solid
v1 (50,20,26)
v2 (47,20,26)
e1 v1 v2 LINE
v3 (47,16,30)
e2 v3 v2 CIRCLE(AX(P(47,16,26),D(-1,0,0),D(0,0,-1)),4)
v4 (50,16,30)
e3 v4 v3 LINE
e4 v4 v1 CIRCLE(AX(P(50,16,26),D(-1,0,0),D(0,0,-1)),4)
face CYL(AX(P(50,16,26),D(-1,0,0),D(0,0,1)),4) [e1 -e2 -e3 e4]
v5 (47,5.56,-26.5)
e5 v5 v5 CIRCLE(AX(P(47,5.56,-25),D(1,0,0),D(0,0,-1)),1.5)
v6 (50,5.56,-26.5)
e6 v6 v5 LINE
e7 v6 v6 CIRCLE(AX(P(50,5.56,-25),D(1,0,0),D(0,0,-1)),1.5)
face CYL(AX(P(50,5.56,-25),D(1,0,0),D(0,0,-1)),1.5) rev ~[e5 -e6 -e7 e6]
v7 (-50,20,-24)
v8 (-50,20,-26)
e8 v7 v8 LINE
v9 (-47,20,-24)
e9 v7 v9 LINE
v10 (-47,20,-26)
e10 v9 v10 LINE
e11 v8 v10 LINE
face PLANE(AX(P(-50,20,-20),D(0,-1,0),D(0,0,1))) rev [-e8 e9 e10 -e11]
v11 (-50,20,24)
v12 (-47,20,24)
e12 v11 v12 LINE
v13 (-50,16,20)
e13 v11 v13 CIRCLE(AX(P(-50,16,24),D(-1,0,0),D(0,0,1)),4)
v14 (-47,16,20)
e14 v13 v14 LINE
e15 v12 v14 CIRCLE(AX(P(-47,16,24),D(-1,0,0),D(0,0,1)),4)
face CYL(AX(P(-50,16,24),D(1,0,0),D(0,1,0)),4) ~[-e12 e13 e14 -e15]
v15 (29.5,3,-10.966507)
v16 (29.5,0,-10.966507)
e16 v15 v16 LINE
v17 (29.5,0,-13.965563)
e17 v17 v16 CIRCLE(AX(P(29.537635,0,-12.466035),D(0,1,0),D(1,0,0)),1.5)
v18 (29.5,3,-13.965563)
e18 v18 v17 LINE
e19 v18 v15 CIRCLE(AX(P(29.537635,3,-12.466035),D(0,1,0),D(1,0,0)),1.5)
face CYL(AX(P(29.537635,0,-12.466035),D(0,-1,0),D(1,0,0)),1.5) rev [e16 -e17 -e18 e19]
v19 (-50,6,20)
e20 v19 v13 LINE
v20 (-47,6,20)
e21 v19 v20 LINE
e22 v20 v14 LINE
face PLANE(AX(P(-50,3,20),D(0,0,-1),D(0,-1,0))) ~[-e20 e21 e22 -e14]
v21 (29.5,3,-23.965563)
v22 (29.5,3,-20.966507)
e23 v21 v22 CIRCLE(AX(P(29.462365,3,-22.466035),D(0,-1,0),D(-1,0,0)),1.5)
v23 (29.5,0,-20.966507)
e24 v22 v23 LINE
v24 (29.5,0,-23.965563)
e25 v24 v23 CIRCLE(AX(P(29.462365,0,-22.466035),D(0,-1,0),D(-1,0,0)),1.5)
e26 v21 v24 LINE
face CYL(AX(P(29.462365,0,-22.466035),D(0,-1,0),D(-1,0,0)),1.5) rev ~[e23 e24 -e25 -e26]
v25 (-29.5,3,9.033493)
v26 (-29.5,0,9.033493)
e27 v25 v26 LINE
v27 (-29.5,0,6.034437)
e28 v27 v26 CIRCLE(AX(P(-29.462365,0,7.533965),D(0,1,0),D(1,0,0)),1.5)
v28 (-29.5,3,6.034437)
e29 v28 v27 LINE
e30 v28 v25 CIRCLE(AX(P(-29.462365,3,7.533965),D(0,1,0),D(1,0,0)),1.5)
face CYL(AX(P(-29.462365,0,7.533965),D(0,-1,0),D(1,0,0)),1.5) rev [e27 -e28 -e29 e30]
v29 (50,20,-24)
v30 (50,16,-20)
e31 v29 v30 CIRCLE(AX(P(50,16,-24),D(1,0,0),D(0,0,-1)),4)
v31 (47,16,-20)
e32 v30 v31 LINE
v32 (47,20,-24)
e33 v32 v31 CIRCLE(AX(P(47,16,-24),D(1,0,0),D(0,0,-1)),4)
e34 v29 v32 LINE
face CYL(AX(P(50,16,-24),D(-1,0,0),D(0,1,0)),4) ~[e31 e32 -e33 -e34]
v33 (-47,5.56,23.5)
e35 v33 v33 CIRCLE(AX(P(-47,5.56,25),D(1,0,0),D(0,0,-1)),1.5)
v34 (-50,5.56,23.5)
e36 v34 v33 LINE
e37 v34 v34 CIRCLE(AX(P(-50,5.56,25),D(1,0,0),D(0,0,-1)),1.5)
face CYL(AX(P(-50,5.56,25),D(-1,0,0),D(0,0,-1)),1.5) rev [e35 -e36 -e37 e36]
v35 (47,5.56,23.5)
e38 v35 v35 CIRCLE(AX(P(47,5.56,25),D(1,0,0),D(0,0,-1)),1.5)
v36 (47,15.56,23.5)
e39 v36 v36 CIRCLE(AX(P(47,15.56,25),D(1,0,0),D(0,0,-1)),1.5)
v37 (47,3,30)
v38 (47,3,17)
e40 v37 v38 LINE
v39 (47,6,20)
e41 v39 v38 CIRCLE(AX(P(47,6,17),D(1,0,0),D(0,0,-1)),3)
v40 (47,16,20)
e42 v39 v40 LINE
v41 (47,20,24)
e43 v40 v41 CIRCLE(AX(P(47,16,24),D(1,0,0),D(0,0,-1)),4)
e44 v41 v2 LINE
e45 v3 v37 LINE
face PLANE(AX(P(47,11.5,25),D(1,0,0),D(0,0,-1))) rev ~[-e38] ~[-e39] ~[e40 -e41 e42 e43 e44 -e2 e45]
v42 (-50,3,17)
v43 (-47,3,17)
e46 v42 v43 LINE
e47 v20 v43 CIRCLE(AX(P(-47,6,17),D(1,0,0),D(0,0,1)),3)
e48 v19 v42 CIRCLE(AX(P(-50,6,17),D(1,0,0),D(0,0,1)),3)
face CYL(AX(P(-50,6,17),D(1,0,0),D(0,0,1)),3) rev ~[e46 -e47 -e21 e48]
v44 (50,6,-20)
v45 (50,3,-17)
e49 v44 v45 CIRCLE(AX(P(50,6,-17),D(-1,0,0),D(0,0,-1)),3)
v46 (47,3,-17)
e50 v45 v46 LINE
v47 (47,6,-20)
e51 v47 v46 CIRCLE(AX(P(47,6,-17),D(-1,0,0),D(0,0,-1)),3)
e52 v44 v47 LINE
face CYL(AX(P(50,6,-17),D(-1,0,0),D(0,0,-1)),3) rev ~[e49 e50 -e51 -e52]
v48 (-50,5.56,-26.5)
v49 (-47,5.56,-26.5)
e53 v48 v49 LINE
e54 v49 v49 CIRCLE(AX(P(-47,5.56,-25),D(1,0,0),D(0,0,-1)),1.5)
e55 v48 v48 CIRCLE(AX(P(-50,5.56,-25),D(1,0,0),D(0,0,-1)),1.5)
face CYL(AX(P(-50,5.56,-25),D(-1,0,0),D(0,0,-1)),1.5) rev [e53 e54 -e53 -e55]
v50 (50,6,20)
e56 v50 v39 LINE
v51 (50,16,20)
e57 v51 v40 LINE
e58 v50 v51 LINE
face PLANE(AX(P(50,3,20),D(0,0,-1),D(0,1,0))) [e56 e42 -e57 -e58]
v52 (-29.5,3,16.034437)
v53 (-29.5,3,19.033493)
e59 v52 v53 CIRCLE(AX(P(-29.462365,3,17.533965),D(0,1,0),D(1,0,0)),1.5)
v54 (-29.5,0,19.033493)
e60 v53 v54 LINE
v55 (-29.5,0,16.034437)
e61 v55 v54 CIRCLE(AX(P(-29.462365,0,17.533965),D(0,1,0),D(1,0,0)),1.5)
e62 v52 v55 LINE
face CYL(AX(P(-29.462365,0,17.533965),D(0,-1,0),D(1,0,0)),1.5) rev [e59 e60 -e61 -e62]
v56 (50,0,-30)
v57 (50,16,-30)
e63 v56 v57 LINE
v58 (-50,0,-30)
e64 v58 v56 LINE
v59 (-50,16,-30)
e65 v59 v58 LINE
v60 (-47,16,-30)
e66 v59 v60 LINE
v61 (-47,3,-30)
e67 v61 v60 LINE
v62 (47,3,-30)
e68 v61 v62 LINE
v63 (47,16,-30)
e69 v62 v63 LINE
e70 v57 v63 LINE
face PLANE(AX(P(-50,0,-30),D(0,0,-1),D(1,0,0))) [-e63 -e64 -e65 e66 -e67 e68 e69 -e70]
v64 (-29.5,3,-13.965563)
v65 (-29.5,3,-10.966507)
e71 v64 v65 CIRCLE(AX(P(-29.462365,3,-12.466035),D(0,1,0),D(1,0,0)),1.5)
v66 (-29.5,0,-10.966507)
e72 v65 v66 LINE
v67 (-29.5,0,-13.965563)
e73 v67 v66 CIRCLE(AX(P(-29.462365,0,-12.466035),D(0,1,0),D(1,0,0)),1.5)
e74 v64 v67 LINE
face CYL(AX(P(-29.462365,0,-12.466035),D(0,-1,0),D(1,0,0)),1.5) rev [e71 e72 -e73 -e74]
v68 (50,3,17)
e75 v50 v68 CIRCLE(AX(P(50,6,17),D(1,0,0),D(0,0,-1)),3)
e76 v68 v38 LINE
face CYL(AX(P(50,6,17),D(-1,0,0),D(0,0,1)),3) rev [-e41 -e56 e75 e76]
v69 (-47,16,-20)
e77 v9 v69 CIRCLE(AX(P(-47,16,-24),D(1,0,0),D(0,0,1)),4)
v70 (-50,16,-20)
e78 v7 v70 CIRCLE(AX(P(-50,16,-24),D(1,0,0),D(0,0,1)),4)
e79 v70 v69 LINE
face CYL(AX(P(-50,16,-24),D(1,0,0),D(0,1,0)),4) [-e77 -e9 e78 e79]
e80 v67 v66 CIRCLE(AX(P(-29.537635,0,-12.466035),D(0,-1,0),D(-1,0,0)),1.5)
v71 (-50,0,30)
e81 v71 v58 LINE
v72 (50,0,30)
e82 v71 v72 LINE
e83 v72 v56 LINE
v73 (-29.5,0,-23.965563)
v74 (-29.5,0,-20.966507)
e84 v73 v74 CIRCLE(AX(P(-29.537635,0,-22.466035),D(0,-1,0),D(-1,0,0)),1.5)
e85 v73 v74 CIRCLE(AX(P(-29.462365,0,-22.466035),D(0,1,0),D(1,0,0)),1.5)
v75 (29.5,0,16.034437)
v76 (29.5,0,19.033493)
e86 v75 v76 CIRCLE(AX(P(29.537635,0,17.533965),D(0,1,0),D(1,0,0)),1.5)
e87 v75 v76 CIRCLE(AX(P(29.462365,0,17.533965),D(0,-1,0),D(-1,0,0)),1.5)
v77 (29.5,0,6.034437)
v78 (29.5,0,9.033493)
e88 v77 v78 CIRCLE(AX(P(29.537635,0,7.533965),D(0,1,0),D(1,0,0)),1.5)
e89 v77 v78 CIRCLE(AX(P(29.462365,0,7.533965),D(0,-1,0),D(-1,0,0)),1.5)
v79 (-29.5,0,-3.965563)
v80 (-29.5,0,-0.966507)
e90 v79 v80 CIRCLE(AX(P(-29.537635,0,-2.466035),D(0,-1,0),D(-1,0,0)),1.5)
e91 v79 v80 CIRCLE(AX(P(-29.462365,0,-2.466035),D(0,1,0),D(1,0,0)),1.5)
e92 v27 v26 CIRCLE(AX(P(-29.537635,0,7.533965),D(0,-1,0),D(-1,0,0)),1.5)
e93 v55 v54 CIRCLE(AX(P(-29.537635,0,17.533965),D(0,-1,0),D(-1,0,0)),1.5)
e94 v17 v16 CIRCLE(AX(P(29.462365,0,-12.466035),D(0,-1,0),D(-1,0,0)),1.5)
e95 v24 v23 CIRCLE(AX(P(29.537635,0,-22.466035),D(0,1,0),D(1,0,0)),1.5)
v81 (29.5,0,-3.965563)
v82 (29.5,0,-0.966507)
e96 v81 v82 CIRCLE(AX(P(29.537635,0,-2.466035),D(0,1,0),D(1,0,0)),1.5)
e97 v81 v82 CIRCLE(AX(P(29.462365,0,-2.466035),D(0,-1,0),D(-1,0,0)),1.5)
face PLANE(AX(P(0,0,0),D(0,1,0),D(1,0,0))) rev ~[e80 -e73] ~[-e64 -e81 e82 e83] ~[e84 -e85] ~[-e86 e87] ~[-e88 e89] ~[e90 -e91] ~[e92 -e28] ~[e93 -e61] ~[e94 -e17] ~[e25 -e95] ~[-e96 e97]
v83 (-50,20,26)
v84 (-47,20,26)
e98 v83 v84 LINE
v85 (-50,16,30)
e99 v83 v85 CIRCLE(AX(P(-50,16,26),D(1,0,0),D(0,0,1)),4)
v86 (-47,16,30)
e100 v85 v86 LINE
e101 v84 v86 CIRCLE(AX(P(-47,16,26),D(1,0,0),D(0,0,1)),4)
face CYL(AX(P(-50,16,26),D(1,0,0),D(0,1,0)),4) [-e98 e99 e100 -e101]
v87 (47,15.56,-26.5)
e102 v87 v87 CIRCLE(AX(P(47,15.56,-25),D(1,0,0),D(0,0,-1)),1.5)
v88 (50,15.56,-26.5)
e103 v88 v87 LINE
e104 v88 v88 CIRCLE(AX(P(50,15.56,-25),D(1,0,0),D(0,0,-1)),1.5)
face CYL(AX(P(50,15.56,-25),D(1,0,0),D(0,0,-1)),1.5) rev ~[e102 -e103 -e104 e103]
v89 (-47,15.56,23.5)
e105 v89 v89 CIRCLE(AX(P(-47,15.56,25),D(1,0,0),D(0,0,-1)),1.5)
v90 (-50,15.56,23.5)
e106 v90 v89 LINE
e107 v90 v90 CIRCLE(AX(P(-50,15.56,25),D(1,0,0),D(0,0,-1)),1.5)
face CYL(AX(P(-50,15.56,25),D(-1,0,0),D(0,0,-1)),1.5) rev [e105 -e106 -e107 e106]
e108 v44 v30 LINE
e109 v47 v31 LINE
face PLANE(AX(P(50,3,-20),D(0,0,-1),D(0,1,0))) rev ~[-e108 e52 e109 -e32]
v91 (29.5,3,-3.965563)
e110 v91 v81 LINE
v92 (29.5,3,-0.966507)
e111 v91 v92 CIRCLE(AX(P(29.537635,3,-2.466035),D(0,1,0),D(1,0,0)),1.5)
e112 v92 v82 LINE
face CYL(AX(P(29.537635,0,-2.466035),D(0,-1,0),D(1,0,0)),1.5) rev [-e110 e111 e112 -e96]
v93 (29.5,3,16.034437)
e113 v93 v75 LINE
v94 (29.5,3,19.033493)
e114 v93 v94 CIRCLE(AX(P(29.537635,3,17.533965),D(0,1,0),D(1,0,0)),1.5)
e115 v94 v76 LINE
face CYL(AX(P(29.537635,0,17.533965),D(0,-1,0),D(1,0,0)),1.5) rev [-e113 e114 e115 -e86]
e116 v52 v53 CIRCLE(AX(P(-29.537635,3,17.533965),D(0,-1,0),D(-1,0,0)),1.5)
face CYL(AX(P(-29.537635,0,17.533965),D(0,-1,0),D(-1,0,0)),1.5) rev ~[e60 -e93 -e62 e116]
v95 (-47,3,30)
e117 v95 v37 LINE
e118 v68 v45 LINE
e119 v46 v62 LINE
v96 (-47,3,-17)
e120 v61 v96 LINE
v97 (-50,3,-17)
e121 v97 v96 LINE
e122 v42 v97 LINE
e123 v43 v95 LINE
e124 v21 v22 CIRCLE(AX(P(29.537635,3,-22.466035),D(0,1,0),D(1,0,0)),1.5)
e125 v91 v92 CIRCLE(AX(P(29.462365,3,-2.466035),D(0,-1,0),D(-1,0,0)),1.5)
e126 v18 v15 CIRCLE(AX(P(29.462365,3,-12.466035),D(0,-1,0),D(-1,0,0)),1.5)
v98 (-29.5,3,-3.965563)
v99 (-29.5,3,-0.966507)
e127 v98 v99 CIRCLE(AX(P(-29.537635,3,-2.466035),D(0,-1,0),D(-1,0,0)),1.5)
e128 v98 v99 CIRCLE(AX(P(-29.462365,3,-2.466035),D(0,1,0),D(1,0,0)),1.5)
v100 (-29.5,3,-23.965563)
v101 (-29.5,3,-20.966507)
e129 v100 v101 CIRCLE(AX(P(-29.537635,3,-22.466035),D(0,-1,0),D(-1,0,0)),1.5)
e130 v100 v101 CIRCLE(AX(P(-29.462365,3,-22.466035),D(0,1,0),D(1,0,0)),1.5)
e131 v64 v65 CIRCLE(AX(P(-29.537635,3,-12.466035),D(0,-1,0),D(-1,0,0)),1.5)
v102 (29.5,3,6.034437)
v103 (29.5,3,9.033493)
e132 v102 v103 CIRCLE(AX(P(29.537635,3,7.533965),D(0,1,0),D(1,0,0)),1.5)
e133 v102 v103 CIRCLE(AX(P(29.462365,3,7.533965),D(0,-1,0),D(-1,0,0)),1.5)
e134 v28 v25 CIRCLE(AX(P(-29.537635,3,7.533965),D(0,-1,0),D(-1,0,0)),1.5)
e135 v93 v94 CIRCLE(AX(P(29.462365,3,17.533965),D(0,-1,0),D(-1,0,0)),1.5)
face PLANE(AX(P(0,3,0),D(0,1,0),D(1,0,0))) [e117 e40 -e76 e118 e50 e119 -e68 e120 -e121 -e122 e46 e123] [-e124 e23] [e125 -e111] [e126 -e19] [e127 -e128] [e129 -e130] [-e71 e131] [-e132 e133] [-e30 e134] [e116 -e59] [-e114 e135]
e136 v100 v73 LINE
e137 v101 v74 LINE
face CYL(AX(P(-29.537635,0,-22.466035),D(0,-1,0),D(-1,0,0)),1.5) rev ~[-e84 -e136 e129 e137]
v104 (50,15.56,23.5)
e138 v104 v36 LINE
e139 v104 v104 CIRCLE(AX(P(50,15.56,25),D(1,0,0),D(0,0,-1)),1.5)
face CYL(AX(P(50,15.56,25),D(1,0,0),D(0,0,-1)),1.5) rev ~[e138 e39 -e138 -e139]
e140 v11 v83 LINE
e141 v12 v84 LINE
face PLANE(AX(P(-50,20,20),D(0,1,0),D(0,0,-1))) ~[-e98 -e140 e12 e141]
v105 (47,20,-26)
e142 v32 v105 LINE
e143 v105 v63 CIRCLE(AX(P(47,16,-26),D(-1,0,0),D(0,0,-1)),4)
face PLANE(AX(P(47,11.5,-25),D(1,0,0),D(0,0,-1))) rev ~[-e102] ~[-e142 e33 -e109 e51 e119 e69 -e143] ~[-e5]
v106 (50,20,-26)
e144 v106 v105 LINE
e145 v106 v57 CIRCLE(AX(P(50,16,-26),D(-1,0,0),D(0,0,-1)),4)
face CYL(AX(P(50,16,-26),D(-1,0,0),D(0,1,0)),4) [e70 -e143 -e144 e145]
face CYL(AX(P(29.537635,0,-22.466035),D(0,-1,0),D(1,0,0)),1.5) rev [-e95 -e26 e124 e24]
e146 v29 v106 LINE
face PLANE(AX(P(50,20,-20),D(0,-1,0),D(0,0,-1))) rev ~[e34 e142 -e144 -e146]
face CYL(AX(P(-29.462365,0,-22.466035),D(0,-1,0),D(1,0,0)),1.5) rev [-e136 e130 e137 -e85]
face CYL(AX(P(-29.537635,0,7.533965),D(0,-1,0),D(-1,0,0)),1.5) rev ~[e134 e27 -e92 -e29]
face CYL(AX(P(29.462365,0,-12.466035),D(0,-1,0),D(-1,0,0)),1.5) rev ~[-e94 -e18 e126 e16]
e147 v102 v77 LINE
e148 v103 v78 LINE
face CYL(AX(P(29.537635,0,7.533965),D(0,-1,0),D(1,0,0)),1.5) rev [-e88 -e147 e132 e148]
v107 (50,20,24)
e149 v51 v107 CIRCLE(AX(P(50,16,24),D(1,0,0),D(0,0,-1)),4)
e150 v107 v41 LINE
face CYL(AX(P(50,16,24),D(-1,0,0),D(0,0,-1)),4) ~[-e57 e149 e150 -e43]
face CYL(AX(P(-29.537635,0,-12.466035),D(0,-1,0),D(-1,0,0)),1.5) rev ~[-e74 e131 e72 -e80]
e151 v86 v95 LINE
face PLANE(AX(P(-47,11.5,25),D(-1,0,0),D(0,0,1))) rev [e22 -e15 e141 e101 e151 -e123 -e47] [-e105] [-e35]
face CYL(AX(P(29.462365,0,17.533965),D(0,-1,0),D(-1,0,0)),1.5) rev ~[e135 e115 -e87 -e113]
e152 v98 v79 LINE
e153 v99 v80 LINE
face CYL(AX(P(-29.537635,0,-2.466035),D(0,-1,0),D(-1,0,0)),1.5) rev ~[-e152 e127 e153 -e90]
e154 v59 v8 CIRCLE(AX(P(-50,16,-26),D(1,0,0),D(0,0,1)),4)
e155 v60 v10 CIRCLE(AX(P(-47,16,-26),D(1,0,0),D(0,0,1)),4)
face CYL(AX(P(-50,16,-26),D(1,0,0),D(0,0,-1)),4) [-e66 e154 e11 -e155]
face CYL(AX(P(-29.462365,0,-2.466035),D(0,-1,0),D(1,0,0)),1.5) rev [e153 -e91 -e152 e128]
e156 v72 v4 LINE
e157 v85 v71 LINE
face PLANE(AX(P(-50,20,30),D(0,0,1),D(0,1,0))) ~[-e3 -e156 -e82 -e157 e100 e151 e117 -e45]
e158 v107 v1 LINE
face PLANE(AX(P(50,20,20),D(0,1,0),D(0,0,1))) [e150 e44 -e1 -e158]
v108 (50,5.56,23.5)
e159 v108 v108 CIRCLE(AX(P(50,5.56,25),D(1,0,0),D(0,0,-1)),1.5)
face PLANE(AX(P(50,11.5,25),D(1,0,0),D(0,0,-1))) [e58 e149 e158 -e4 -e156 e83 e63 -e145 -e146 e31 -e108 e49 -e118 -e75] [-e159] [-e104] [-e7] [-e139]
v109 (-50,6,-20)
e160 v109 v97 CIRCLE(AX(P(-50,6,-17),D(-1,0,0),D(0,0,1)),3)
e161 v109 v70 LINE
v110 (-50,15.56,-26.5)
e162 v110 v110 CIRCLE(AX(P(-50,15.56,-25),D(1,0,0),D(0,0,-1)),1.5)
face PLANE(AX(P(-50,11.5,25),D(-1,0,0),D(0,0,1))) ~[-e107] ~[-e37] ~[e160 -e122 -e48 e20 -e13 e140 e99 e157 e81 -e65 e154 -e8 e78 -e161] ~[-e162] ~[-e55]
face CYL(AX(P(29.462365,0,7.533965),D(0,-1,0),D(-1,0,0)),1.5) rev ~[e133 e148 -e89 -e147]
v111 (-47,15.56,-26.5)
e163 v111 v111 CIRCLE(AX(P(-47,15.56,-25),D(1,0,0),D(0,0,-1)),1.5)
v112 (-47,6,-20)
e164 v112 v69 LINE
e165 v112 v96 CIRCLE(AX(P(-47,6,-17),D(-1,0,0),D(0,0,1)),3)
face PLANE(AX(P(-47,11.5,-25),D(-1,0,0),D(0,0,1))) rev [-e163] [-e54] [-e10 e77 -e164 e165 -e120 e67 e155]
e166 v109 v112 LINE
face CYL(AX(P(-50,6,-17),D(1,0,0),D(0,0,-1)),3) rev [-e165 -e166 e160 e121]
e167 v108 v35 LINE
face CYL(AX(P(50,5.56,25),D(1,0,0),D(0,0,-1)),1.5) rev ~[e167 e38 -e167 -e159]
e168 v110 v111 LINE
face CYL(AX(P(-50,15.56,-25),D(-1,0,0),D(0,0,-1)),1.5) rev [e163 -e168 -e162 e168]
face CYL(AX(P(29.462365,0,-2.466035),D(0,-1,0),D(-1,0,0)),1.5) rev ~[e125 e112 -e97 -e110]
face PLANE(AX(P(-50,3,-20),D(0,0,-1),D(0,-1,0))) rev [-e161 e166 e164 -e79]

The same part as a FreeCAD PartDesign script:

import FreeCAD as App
import Part
import Sketcher


def edges_at(feature, points):
    """Names of the edges that pass closest to the given points."""
    edges = feature.Shape.Edges
    near = lambda p: min(range(len(edges)), key=lambda i: edges[i].distToShape(Part.Vertex(*p))[0])
    return sorted({f"Edge{near(p) + 1}" for p in points})


def add_polygon(sketch, points):
    """Adds a closed chain of lines whose ends are joined by coincident constraints."""
    first, n = sketch.GeometryCount, len(points)
    for a, b in zip(points, points[1:] + points[:1]):
        sketch.addGeometry(Part.LineSegment(App.Vector(*a, 0), App.Vector(*b, 0)), False)
    for i in range(n):
        sketch.addConstraint(Sketcher.Constraint("Coincident", first + i, 2, first + (i + 1) % n, 1))

doc = App.newDocument("Part")
body = doc.addObject("PartDesign::Body", "Body")

sketch1 = body.newObject("Sketcher::SketchObject", "Sketch")
sketch1.AttachmentSupport = (doc.getObject("XZ_Plane"), [""])
sketch1.MapMode = "FlatFace"
add_polygon(sketch1, [(-50, -30), (-50, 30), (50, 30), (50, -30)])
sketch1.addGeometry(Part.Circle(App.Vector(-29.5, 17.5, 0), App.Vector(0, 0, 1), 1.5), False)
sketch1.addGeometry(Part.Circle(App.Vector(-29.5, 7.5, 0), App.Vector(0, 0, 1), 1.5), False)
sketch1.addGeometry(Part.Circle(App.Vector(29.5, 17.5, 0), App.Vector(0, 0, 1), 1.5), False)
sketch1.addGeometry(Part.Circle(App.Vector(29.5, 7.5, 0), App.Vector(0, 0, 1), 1.5), False)
sketch1.addGeometry(Part.Circle(App.Vector(-29.5, -2.5, 0), App.Vector(0, 0, 1), 1.5), False)
sketch1.addGeometry(Part.Circle(App.Vector(-29.5, -12.5, 0), App.Vector(0, 0, 1), 1.5), False)
sketch1.addGeometry(Part.Circle(App.Vector(-29.5, -22.5, 0), App.Vector(0, 0, 1), 1.5), False)
sketch1.addGeometry(Part.Circle(App.Vector(29.5, -2.5, 0), App.Vector(0, 0, 1), 1.5), False)
sketch1.addGeometry(Part.Circle(App.Vector(29.5, -12.5, 0), App.Vector(0, 0, 1), 1.5), False)
sketch1.addGeometry(Part.Circle(App.Vector(29.5, -22.5, 0), App.Vector(0, 0, 1), 1.5), False)
sketch1.addConstraint([
    Sketcher.Constraint("Vertical", 0),
    Sketcher.Constraint("Horizontal", 1),
    Sketcher.Constraint("Vertical", 2),
    Sketcher.Constraint("Horizontal", 3),
    Sketcher.Constraint("Equal", 4, 5),
    Sketcher.Constraint("Equal", 5, 6),
    Sketcher.Constraint("Equal", 6, 7),
    Sketcher.Constraint("Equal", 7, 8),
    Sketcher.Constraint("Equal", 8, 9),
    Sketcher.Constraint("Equal", 9, 10),
    Sketcher.Constraint("Equal", 10, 11),
    Sketcher.Constraint("Equal", 11, 12),
    Sketcher.Constraint("Equal", 12, 13),
    Sketcher.Constraint("Symmetric", 0, 2, 2, 2, -1, 1),
    Sketcher.Constraint("Horizontal", 4, 3, 6, 3),
    Sketcher.Constraint("Horizontal", 5, 3, 7, 3),
    Sketcher.Constraint("Horizontal", 8, 3, 11, 3),
    Sketcher.Constraint("Horizontal", 9, 3, 12, 3),
    Sketcher.Constraint("Horizontal", 10, 3, 13, 3),
    Sketcher.Constraint("Vertical", 4, 3, 5, 3),
    Sketcher.Constraint("Vertical", 6, 3, 7, 3),
    Sketcher.Constraint("Vertical", 5, 3, 8, 3),
    Sketcher.Constraint("Vertical", 8, 3, 9, 3),
    Sketcher.Constraint("Vertical", 9, 3, 10, 3),
    Sketcher.Constraint("Vertical", 7, 3, 11, 3),
    Sketcher.Constraint("Vertical", 11, 3, 12, 3),
    Sketcher.Constraint("Vertical", 12, 3, 13, 3),
    Sketcher.Constraint("Diameter", 4, 3.0),
    Sketcher.Constraint("DistanceX", 1, 1, 1, 2, 100.0),
    Sketcher.Constraint("DistanceY", 0, 1, 0, 2, 60.0),
    Sketcher.Constraint("DistanceY", 5, 3, 4, 3, 10.0),
    Sketcher.Constraint("DistanceX", 4, 3, 6, 3, 59.0),
    Sketcher.Constraint("DistanceY", 8, 3, 5, 3, 10.0),
    Sketcher.Constraint("DistanceY", 9, 3, 8, 3, 10.0),
    Sketcher.Constraint("DistanceY", 10, 3, 9, 3, 10.0),
    Sketcher.Constraint("DistanceX", 4, 3, -1, 1, 29.462365),
    Sketcher.Constraint("DistanceY", -1, 1, 4, 3, 17.533965),
])
pad1 = body.newObject("PartDesign::Pad", "Pad")
pad1.Profile = sketch1
pad1.Length = 3
pad1.Reversed = True

sketch2 = body.newObject("Sketcher::SketchObject", "Sketch001")
sketch2.AttachmentSupport = (doc.getObject("YZ_Plane"), [""])
sketch2.MapMode = "FlatFace"
sketch2.AttachmentOffset = App.Placement(App.Vector(0, 0, 50), App.Rotation())
add_polygon(sketch2, [(3, 30), (3, 20), (20, 20), (20, 30)])
sketch2.addGeometry(Part.Circle(App.Vector(5.6, 25, 0), App.Vector(0, 0, 1), 1.5), False)
sketch2.addGeometry(Part.Circle(App.Vector(15.6, 25, 0), App.Vector(0, 0, 1), 1.5), False)
add_polygon(sketch2, [(20, -20), (3, -20), (3, -30), (20, -30)])
sketch2.addGeometry(Part.Circle(App.Vector(5.6, -25, 0), App.Vector(0, 0, 1), 1.5), False)
sketch2.addGeometry(Part.Circle(App.Vector(15.6, -25, 0), App.Vector(0, 0, 1), 1.5), False)
sketch2.addConstraint([
    Sketcher.Constraint("Vertical", 0),
    Sketcher.Constraint("Horizontal", 1),
    Sketcher.Constraint("Vertical", 2),
    Sketcher.Constraint("Horizontal", 3),
    Sketcher.Constraint("Horizontal", 6),
    Sketcher.Constraint("Vertical", 7),
    Sketcher.Constraint("Horizontal", 8),
    Sketcher.Constraint("Vertical", 9),
    Sketcher.Constraint("Equal", 4, 5),
    Sketcher.Constraint("Equal", 5, 10),
    Sketcher.Constraint("Equal", 10, 11),
    Sketcher.Constraint("Symmetric", 4, 3, 10, 3, -1),
    Sketcher.Constraint("Symmetric", 5, 3, 11, 3, -1),
    Sketcher.Constraint("Symmetric", 0, 2, 6, 2, -1),
    Sketcher.Constraint("Symmetric", 2, 2, 8, 2, -1),
    Sketcher.Constraint("Horizontal", 4, 3, 5, 3),
    Sketcher.Constraint("Diameter", 4, 3.0),
    Sketcher.Constraint("DistanceX", 1, 1, 1, 2, 17.0),
    Sketcher.Constraint("DistanceY", 0, 2, 0, 1, 10.0),
    Sketcher.Constraint("DistanceY", -1, 1, 4, 3, 25.0),
    Sketcher.Constraint("DistanceX", -1, 1, 0, 2, 3.0),
    Sketcher.Constraint("DistanceY", -1, 1, 0, 2, 20.0),
    Sketcher.Constraint("DistanceX", 4, 3, 5, 3, 10.0),
    Sketcher.Constraint("DistanceX", -1, 1, 4, 3, 5.56),
])
pad2 = body.newObject("PartDesign::Pad", "Pad001")
pad2.Profile = sketch2
pad2.Length = 3
pad2.Reversed = True
doc.recompute()

mirrored = body.newObject("PartDesign::Mirrored", "Mirrored")
mirrored.Originals = [pad1, pad2]
mirrored.MirrorPlane = (doc.getObject("YZ_Plane"), [""])
body.Tip = mirrored
doc.recompute()

fillet = body.newObject("PartDesign::Fillet", "Fillet")
fillet.Base = (mirrored, edges_at(mirrored, [
    (48.5, 3, 20),
    (48.5, 3, -20),
    (-48.5, 3, 20),
    (-48.5, 3, -20),
]))
fillet.Radius = 3
doc.recompute()

fillet2 = body.newObject("PartDesign::Fillet", "Fillet001")
fillet2.Base = (fillet, edges_at(fillet, [
    (-48.5, 20, 30),
    (-48.5, 20, 20),
    (-48.5, 20, -20),
    (-48.5, 20, -30),
    (48.5, 20, -20),
    (48.5, 20, -30),
    (48.5, 20, 30),
    (48.5, 20, 20),
]))
fillet2.Radius = 4

doc.recompute()
